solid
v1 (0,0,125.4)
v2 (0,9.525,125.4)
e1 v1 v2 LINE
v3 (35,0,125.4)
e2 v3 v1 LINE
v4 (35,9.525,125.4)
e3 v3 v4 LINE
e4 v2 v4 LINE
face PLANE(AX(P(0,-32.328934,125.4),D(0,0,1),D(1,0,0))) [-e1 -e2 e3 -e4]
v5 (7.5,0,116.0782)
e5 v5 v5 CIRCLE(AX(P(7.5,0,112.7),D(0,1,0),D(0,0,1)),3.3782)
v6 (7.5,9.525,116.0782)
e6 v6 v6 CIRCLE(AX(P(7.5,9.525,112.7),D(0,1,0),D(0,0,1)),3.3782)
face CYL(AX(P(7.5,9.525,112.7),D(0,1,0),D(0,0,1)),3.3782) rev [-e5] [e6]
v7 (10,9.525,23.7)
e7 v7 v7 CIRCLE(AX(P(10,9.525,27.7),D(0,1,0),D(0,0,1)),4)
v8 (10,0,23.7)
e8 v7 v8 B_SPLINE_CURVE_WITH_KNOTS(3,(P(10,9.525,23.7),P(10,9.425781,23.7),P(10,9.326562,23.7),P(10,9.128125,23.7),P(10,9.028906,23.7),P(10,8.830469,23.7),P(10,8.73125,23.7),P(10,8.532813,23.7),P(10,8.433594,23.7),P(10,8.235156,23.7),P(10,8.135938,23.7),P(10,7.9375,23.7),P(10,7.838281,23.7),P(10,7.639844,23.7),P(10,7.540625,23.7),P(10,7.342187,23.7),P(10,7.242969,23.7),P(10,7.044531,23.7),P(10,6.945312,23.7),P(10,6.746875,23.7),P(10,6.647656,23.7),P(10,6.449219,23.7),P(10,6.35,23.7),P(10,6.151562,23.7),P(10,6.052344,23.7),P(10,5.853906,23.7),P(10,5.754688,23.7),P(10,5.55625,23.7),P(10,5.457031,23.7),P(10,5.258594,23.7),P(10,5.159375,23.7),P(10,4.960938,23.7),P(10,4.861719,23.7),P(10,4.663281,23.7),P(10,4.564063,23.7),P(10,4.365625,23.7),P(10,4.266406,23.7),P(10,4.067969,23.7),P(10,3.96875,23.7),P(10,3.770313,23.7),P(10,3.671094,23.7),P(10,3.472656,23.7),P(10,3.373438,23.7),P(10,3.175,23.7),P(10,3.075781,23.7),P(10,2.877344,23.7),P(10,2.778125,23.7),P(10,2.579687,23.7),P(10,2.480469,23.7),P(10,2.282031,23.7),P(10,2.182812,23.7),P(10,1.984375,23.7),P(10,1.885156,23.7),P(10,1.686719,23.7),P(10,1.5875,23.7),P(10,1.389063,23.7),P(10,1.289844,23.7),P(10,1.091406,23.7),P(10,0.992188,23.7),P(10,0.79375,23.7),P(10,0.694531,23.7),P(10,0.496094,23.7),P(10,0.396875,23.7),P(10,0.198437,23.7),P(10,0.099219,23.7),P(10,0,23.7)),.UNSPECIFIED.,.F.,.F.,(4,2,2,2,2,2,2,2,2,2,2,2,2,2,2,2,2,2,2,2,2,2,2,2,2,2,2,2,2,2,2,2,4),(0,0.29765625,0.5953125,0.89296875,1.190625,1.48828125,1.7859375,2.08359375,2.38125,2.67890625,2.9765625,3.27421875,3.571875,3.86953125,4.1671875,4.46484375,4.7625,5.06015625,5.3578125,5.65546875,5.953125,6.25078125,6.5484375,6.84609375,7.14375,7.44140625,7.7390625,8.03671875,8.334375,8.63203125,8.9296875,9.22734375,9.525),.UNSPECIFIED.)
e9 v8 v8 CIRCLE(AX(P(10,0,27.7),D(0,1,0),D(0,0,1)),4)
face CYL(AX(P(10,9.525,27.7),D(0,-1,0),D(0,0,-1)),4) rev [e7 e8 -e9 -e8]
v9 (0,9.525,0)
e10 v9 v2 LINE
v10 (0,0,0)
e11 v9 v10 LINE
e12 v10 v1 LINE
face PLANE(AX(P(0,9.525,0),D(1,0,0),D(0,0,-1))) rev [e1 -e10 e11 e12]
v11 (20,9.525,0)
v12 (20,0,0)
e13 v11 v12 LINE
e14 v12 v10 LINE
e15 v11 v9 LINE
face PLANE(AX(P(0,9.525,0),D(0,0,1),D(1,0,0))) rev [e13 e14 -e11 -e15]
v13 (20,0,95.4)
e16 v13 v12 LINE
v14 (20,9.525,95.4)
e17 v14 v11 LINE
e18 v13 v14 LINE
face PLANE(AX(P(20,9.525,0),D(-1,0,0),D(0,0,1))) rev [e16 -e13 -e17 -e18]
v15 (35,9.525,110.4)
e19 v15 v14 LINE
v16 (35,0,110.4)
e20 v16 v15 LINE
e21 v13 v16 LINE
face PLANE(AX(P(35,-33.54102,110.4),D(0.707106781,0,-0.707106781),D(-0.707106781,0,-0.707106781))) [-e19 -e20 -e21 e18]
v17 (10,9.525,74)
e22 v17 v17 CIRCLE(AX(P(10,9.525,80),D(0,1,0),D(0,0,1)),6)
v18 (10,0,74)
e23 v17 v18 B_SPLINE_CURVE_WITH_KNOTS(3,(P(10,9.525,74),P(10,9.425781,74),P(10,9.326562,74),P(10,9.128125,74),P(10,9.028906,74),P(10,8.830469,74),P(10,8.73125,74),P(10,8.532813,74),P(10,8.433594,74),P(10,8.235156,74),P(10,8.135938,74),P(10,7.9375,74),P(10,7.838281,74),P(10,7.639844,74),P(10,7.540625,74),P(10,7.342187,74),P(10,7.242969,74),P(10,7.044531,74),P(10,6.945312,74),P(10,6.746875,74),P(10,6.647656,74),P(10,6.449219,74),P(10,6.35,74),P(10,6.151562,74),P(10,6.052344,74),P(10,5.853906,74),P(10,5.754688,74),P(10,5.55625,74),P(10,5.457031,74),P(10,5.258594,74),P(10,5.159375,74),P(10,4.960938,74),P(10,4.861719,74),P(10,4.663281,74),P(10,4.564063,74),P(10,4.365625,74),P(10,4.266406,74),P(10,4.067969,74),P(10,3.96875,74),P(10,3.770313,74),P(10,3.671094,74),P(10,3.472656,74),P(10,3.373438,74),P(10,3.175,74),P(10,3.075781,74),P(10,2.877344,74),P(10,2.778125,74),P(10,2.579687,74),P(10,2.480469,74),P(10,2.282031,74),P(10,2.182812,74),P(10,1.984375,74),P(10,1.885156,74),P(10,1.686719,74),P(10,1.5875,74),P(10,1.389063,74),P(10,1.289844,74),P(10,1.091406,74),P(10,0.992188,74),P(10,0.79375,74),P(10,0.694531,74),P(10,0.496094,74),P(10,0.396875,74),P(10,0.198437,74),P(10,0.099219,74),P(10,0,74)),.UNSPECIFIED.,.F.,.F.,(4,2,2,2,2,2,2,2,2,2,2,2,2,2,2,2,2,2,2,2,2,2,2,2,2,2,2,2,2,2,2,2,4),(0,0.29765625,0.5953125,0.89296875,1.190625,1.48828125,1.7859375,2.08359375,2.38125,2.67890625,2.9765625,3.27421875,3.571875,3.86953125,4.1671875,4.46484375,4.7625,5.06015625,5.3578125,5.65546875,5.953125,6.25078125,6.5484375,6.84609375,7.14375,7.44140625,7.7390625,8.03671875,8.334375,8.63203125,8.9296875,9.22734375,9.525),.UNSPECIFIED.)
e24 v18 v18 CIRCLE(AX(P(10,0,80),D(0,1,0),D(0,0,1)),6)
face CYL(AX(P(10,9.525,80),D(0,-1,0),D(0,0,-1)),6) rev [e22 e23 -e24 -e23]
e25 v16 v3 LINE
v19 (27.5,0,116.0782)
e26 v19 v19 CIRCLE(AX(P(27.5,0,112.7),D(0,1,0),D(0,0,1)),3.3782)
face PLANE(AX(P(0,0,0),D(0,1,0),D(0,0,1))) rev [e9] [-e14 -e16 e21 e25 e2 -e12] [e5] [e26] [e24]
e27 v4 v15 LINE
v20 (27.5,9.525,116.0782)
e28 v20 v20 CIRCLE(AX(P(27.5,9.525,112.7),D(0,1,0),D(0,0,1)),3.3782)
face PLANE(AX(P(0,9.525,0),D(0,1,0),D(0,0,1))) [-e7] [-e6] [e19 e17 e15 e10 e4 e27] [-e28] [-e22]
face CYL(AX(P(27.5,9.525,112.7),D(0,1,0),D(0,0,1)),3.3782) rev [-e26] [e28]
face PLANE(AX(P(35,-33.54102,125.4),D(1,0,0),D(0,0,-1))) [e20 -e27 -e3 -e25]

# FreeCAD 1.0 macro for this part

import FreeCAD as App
import Part
import Sketcher
from FreeCAD import Vector
Q = App.Units.Quantity


def add_polygon(sketch, points):
    """Adds a closed chain of lines whose ends are joined by coincident constraints."""
    first, n = sketch.GeometryCount, len(points)
    for a, b in zip(points, points[1:] + points[:1]):
        sketch.addGeometry(Part.LineSegment(App.Vector(*a, 0), App.Vector(*b, 0)), False)
    for i in range(n):
        sketch.addConstraint(Sketcher.Constraint("Coincident", first + i, 2, first + (i + 1) % n, 1))

doc = App.newDocument("Part")
params = doc.addObject("Spreadsheet::Sheet", "Params")
for row, (alias, value) in enumerate([
    ("sketch1_diameter", "12 mm"),
    ("sketch1_diameter2", "8 mm"),
    ("sketch1_width", "20 mm"),
    ("sketch1_height", "100 mm"),
    ("pad1_length", "9.525 mm"),
    ("sketch2_width", "20 mm"),
    ("sketch2_height", "25.4 mm"),
    ("pad2_length", "9.525 mm"),
    ("sketch3_width", "15 mm"),
    ("sketch3_height", "30 mm"),
    ("pad3_length", "9.525 mm"),
    ("hole_diameter", "6.7564 mm"),
], start=1):
    params.set(f"A{row}", alias)
    params.set(f"B{row}", "=" + value)
    params.setAlias(f"B{row}", alias)

body = doc.addObject("PartDesign::Body", "Body")

# Sketch on XZ plane
sketch1 = body.newObject("Sketcher::SketchObject", "Sketch")
sketch1.AttachmentSupport = (doc.getObject("XZ_Plane"), [""])
sketch1.MapMode = "FlatFace"
add_polygon(sketch1, [(0, 0), (0, 100), (20, 100), (20, 0)])  # lines 0-3
sketch1.addGeometry(Part.Circle(Vector(10, 80, 0), Vector(0, 0, 1), 6), False)  # 4
sketch1.addGeometry(Part.Circle(Vector(10, 27.7, 0), Vector(0, 0, 1), 4), False)  # 5
sketch1.addConstraint([
    Sketcher.Constraint("Vertical", 0),
    Sketcher.Constraint("Horizontal", 1),
    Sketcher.Constraint("Vertical", 2),
    Sketcher.Constraint("Horizontal", 3),
    Sketcher.Constraint("Coincident", 3, 2, -1, 1),
    Sketcher.Constraint("Vertical", 4, 3, 5, 3),
    Sketcher.Constraint("Diameter", 4, Q("12 mm")),
    Sketcher.Constraint("Diameter", 5, Q("8 mm")),
    Sketcher.Constraint("DistanceX", 1, 1, 1, 2, Q("20 mm")),
    Sketcher.Constraint("DistanceY", 0, 1, 0, 2, Q("100 mm")),
    Sketcher.Constraint("DistanceX", -1, 1, 4, 3, Q("10 mm")),
    Sketcher.Constraint("DistanceY", -1, 1, 4, 3, Q("80 mm")),
    Sketcher.Constraint("DistanceY", -1, 1, 5, 3, Q("27.7 mm")),
])
sketch1.setExpression("Constraints[10]", "Params.sketch1_diameter")
sketch1.setExpression("Constraints[11]", "Params.sketch1_diameter2")
sketch1.setExpression("Constraints[12]", "Params.sketch1_width")
sketch1.setExpression("Constraints[13]", "Params.sketch1_height")
pad1 = body.newObject("PartDesign::Pad", "Pad")
pad1.Profile = sketch1
pad1.setExpression("Length", "Params.pad1_length")
pad1.Reversed = True

# Sketch on XZ plane
sketch2 = body.newObject("Sketcher::SketchObject", "Sketch001")
sketch2.AttachmentSupport = (doc.getObject("XZ_Plane"), [""])
sketch2.MapMode = "FlatFace"
sketch2.AttachmentOffset = App.Placement(Vector(0, 0, -9.525), App.Rotation())
add_polygon(sketch2, [(0, 100), (0, 125.4), (20, 125.4), (20, 100)])  # lines 0-3
sketch2.addConstraint([
    Sketcher.Constraint("Vertical", 0),
    Sketcher.Constraint("Horizontal", 1),
    Sketcher.Constraint("Vertical", 2),
    Sketcher.Constraint("Horizontal", 3),
    Sketcher.Constraint("PointOnObject", 0, 2, -2),
    Sketcher.Constraint("DistanceX", 1, 1, 1, 2, Q("20 mm")),
    Sketcher.Constraint("DistanceY", 0, 1, 0, 2, Q("25.4 mm")),
    Sketcher.Constraint("DistanceY", -1, 1, 2, 2, Q("100 mm")),
])
sketch2.setExpression("Constraints[9]", "Params.sketch2_width")
sketch2.setExpression("Constraints[10]", "Params.sketch2_height")
pad2 = body.newObject("PartDesign::Pad", "Pad001")
pad2.Profile = sketch2
pad2.setExpression("Length", "Params.pad2_length")

# Sketch on XZ plane
sketch3 = body.newObject("Sketcher::SketchObject", "Sketch002")
sketch3.AttachmentSupport = (doc.getObject("XZ_Plane"), [""])
sketch3.MapMode = "FlatFace"
sketch3.AttachmentOffset = App.Placement(Vector(0, 0, -9.525), App.Rotation())
add_polygon(sketch3, [(20, 125.4), (35, 125.4), (35, 110.4), (20, 95.4)])  # lines 0-3
sketch3.addConstraint([
    Sketcher.Constraint("Horizontal", 0),
    Sketcher.Constraint("Vertical", 1),
    Sketcher.Constraint("Vertical", 3),
    Sketcher.Constraint("Equal", 0, 1),
    Sketcher.Constraint("DistanceX", 0, 1, 0, 2, Q("15 mm")),
    Sketcher.Constraint("DistanceY", 3, 1, 3, 2, Q("30 mm")),
    Sketcher.Constraint("DistanceX", -1, 1, 0, 2, Q("35 mm")),
    Sketcher.Constraint("DistanceY", -1, 1, 0, 2, Q("125.4 mm")),
])
sketch3.setExpression("Constraints[8]", "Params.sketch3_width")
sketch3.setExpression("Constraints[9]", "Params.sketch3_height")
pad3 = body.newObject("PartDesign::Pad", "Pad002")
pad3.Profile = sketch3
pad3.setExpression("Length", "Params.pad3_length")

# Sketch on XZ plane
sketch4 = body.newObject("Sketcher::SketchObject", "Sketch003")
sketch4.AttachmentSupport = (doc.getObject("XZ_Plane"), [""])
sketch4.MapMode = "FlatFace"
sketch4.AttachmentOffset = App.Placement(Vector(0, 0, -9.525), App.Rotation())
sketch4.addGeometry([
    Part.Circle(Vector(7.5, 112.7, 0), Vector(0, 0, 1), 3.3782),
    Part.Circle(Vector(27.5, 112.7, 0), Vector(0, 0, 1), 3.3782),
], False)
sketch4.addConstraint([
    Sketcher.Constraint("Equal", 0, 1),
    Sketcher.Constraint("Horizontal", 0, 3, 1, 3),
    Sketcher.Constraint("DistanceX", 0, 3, 1, 3, Q("20 mm")),
    Sketcher.Constraint("Diameter", 0, Q("6.7564 mm")),
    Sketcher.Constraint("DistanceX", -1, 1, 0, 3, Q("7.5 mm")),
    Sketcher.Constraint("DistanceY", -1, 1, 0, 3, Q("112.7 mm")),
])
doc.recompute()
hole = body.newObject("PartDesign::Hole", "Hole")
hole.Profile = sketch4
hole.ThreadType = "None"
hole.setExpression("Diameter", "Params.hole_diameter")
hole.DepthType = "ThroughAll"
hole.Reversed = True

doc.recompute()
